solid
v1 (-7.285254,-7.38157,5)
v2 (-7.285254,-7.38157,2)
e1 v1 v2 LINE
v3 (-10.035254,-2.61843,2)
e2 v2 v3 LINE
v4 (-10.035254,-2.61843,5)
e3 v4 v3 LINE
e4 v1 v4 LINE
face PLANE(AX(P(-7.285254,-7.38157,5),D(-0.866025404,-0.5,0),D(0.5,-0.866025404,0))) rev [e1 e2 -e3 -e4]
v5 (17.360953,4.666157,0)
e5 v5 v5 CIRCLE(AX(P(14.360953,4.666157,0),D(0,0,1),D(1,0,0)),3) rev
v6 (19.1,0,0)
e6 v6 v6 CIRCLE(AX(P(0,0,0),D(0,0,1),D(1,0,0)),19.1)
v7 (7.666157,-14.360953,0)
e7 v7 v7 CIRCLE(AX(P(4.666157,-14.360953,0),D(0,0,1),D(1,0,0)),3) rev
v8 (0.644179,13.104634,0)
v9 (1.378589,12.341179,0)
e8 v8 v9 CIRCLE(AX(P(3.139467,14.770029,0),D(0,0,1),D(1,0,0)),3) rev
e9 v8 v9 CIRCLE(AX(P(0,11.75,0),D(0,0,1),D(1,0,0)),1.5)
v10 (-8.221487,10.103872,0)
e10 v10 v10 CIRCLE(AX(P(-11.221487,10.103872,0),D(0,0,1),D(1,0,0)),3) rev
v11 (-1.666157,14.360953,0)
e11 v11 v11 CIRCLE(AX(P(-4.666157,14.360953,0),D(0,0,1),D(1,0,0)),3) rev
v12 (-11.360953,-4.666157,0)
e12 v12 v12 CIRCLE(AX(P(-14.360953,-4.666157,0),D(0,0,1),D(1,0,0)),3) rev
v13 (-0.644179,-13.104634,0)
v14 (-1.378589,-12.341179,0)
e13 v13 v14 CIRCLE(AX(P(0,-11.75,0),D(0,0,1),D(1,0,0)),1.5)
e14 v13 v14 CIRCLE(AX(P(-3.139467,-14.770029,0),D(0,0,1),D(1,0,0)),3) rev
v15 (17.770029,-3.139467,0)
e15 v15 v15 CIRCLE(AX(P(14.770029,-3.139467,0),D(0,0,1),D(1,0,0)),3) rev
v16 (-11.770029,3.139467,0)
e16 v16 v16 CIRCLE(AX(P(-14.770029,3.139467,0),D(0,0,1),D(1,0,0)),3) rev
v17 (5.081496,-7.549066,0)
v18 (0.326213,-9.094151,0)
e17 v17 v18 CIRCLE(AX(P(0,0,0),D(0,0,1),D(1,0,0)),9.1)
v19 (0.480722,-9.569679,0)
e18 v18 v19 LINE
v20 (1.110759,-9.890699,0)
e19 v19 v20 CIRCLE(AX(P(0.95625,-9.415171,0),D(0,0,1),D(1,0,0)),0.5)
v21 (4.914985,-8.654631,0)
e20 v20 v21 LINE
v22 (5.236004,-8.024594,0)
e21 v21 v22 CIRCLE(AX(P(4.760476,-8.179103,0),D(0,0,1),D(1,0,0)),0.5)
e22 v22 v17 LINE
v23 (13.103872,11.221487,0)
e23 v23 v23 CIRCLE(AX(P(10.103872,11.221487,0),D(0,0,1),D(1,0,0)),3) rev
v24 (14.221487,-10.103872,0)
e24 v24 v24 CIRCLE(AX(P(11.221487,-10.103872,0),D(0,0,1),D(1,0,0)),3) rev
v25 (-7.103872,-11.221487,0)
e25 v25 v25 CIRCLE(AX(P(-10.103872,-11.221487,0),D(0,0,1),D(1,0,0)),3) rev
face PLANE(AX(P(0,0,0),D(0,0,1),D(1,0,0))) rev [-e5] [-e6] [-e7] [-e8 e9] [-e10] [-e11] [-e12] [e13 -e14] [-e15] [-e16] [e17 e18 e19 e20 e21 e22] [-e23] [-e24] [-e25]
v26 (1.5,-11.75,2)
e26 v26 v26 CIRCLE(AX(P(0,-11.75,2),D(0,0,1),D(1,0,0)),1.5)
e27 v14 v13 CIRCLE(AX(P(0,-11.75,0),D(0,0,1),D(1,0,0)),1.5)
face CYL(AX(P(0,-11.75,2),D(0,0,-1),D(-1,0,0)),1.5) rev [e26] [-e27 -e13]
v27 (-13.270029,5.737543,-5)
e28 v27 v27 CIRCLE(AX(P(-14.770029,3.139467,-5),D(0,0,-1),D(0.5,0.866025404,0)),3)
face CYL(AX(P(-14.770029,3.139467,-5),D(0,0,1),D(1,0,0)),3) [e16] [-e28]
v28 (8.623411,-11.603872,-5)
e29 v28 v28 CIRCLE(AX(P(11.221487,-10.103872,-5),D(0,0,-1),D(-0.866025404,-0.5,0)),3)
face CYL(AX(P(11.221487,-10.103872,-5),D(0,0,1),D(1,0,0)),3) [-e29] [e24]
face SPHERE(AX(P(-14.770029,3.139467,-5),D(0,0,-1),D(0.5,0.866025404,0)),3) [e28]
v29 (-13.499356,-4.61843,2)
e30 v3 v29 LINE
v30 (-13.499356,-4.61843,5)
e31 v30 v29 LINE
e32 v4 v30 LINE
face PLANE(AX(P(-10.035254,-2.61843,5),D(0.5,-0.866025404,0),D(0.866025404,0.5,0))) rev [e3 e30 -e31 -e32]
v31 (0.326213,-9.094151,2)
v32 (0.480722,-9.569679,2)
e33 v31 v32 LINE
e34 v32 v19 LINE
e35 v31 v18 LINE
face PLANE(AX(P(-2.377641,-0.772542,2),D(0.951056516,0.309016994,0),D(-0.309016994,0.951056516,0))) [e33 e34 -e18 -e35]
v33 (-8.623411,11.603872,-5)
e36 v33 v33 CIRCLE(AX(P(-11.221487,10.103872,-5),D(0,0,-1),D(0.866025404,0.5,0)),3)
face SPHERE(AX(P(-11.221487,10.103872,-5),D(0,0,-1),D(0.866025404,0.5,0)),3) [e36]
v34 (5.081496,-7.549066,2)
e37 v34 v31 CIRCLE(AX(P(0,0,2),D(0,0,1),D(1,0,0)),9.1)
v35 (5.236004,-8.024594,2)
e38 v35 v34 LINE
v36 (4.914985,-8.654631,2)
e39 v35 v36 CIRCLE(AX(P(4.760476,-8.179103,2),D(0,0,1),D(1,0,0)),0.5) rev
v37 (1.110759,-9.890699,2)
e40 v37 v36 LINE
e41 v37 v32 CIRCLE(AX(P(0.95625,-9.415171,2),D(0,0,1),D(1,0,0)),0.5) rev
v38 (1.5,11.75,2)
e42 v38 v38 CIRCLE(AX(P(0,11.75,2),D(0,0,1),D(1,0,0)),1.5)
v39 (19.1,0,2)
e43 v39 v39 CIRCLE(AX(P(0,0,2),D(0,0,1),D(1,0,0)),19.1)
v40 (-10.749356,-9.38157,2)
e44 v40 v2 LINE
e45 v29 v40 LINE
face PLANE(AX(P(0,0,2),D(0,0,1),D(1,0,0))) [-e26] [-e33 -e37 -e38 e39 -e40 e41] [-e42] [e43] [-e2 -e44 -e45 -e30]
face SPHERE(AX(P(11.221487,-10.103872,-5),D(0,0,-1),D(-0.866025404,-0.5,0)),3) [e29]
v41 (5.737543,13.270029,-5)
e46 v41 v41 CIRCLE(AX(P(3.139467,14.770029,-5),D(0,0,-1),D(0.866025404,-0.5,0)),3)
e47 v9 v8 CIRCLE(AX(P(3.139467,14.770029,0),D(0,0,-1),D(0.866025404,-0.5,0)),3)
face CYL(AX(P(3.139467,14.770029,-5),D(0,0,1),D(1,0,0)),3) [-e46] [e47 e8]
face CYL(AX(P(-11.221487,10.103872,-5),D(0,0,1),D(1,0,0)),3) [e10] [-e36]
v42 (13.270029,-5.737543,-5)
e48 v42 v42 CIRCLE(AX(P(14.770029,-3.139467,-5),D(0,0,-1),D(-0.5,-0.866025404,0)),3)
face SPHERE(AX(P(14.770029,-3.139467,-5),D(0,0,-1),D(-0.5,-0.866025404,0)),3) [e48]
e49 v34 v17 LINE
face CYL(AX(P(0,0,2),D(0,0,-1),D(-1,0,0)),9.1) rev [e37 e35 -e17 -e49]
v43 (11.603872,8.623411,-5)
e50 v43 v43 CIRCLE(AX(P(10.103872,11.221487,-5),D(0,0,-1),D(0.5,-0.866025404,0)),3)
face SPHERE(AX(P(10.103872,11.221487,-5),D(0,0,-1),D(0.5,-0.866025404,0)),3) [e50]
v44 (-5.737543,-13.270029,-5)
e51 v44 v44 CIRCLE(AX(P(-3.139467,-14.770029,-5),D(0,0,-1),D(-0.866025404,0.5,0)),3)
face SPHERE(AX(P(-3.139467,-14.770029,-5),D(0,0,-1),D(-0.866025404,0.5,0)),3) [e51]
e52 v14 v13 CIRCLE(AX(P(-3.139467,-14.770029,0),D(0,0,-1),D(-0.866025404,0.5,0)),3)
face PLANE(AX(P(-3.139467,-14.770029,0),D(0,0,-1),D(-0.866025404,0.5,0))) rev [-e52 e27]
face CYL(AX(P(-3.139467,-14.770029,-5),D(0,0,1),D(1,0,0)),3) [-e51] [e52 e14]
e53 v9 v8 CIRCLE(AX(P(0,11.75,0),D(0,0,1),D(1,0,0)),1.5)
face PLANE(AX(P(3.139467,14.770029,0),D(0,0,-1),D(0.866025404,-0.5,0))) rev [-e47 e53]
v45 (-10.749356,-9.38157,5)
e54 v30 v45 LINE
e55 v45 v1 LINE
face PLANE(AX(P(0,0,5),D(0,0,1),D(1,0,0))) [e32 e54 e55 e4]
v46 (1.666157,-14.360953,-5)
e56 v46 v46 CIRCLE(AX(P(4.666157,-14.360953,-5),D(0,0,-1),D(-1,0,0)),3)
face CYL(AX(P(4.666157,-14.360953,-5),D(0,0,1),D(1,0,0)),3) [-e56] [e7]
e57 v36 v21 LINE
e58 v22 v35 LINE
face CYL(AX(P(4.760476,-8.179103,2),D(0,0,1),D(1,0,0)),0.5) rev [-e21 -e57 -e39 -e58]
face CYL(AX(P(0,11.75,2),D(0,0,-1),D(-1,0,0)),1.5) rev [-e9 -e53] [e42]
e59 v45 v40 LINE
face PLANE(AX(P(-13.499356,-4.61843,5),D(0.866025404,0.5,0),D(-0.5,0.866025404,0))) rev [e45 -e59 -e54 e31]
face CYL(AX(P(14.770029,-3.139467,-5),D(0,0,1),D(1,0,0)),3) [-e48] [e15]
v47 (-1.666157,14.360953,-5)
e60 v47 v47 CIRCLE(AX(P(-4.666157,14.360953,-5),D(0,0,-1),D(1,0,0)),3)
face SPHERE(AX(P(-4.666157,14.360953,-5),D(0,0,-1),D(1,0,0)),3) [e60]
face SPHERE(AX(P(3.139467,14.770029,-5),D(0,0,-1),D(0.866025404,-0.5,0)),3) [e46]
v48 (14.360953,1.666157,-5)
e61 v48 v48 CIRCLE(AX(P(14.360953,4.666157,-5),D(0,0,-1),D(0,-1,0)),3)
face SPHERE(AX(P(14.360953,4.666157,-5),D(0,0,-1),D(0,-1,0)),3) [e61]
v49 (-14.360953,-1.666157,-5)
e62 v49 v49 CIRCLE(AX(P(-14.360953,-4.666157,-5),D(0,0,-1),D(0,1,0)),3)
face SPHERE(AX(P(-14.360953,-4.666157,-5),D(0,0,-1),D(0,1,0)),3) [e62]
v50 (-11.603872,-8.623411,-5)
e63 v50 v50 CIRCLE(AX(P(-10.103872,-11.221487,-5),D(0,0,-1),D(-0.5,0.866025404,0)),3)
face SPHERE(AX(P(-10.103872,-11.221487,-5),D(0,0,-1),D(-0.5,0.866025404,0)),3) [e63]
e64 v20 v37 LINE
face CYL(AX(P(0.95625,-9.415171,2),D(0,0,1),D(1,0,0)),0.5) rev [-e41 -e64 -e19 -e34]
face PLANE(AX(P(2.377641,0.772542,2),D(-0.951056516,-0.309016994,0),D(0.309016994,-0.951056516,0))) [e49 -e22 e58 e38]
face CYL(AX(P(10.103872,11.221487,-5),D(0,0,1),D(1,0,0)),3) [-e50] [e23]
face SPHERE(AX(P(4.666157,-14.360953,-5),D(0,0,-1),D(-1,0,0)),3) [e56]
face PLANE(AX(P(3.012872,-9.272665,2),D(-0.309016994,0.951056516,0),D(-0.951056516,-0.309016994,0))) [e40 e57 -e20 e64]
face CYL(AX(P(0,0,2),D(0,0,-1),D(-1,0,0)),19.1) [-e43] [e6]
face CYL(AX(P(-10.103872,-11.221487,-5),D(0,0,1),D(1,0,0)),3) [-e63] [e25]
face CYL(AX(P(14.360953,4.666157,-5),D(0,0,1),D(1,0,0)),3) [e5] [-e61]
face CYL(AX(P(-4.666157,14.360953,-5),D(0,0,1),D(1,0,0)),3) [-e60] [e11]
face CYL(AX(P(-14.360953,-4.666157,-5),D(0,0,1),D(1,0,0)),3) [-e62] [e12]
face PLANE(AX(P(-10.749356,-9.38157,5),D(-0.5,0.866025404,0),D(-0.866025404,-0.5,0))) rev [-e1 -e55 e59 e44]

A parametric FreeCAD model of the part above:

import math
import FreeCAD as App
import Part
import Sketcher

V = App.Vector
Q = App.Units.Quantity


def edges_at(feature, points):
    """Names of the edges that pass closest to the given points."""
    edges = feature.Shape.Edges
    near = lambda p: min(range(len(edges)), key=lambda i: edges[i].distToShape(Part.Vertex(*p))[0])
    return sorted({f"Edge{near(p) + 1}" for p in points})

doc = App.newDocument("Part")
body = doc.addObject("PartDesign::Body", "Body")

# Sketch on XY plane
sketch1 = body.newObject("Sketcher::SketchObject", "Sketch")
sketch1.AttachmentSupport = (doc.getObject("XY_Plane"), [""])
sketch1.MapMode = "FlatFace"
sketch1.addGeometry(Part.Circle(V(0, 0, 0), V(0, 0, 1), 19.1), False)
sketch1.addGeometry(Part.Circle(V(0, -11.8, 0), V(0, 0, 1), 1.5), False)
sketch1.addGeometry(Part.LineSegment(V(5.4, -8.5, 0), V(0.6, -10, 0)), False)
sketch1.addGeometry(Part.LineSegment(V(0.6, -10, 0), V(0.3, -9.1, 0)), False)
sketch1.addGeometry(Part.ArcOfCircle(Part.Circle(V(0, 0, 0), V(0, 0, 1), 9.1), math.radians(-56), math.radians(272)), False)
sketch1.addGeometry(Part.LineSegment(V(5.1, -7.5, 0), V(5.4, -8.5, 0)), False)
sketch1.addGeometry(Part.Circle(V(0, 11.8, 0), V(0, 0, 1), 1.5), False)
sketch1.addConstraint(Sketcher.Constraint("Coincident", 2, 2, 3, 1))
sketch1.addConstraint(Sketcher.Constraint("Coincident", 3, 2, 4, 2))
sketch1.addConstraint(Sketcher.Constraint("Coincident", 4, 1, 5, 1))
sketch1.addConstraint(Sketcher.Constraint("Coincident", 5, 2, 2, 1))
sketch1.addConstraint(Sketcher.Constraint("Coincident", 0, 3, -1, 1))
sketch1.addConstraint(Sketcher.Constraint("Coincident", 4, 3, -1, 1))
sketch1.addConstraint(Sketcher.Constraint("Equal", 1, 6))
sketch1.addConstraint(Sketcher.Constraint("Symmetric", 1, 3, 6, 3, -1, 1))
sketch1.addConstraint(Sketcher.Constraint("PointOnObject", 1, 3, -2))
sketch1.addConstraint(Sketcher.Constraint("Perpendicular", 2, 3))
sketch1.addConstraint(Sketcher.Constraint("Parallel", 3, 5))
sketch1.addConstraint(Sketcher.Constraint("Equal", 3, 5))
sketch1.addConstraint(Sketcher.Constraint("Diameter", 1, 3.0))
sketch1.addConstraint(Sketcher.Constraint("Diameter", 0, 38.2))
sketch1.addConstraint(Sketcher.Constraint("Radius", 4, 9.1))
sketch1.addConstraint(Sketcher.Constraint("Angle", 2, Q("-162 deg")))
sketch1.addConstraint(Sketcher.Constraint("Distance", 2, 5.0))
sketch1.addConstraint(Sketcher.Constraint("Distance", 3, 1.0))
sketch1.addConstraint(Sketcher.Constraint("DistanceY", 1, 3, 6, 3, 23.5))
pad1 = body.newObject("PartDesign::Pad", "Pad")
pad1.Profile = sketch1
pad1.Length = 2
doc.recompute()

fillet = body.newObject("PartDesign::Fillet", "Fillet")
fillet.Base = (pad1, edges_at(pad1, [(0.635, -10.045, 1), (5.391, -8.5, 1)]))
fillet.Radius = 0.5

# Sketch on XY plane
sketch2 = body.newObject("Sketcher::SketchObject", "Sketch001")
sketch2.AttachmentSupport = (doc.getObject("XY_Plane"), [""])
sketch2.MapMode = "FlatFace"
sketch2.AttachmentOffset = App.Placement(V(0, 0, 2), App.Rotation())
sketch2.addGeometry(Part.LineSegment(V(-10, -2.6, 0), V(-13.5, -4.6, 0)), False)
sketch2.addGeometry(Part.LineSegment(V(-13.5, -4.6, 0), V(-10.7, -9.4, 0)), False)
sketch2.addGeometry(Part.LineSegment(V(-10.7, -9.4, 0), V(-7.3, -7.4, 0)), False)
sketch2.addGeometry(Part.LineSegment(V(-7.3, -7.4, 0), V(-10, -2.6, 0)), False)
sketch2.addConstraint(Sketcher.Constraint("Coincident", 0, 2, 1, 1))
sketch2.addConstraint(Sketcher.Constraint("Coincident", 1, 2, 2, 1))
sketch2.addConstraint(Sketcher.Constraint("Coincident", 2, 2, 3, 1))
sketch2.addConstraint(Sketcher.Constraint("Coincident", 3, 2, 0, 1))
sketch2.addConstraint(Sketcher.Constraint("Perpendicular", 0, 1))
sketch2.addConstraint(Sketcher.Constraint("Perpendicular", 1, 2))
sketch2.addConstraint(Sketcher.Constraint("Perpendicular", 2, 3))
sketch2.addConstraint(Sketcher.Constraint("Angle", 0, Q("-150 deg")))
sketch2.addConstraint(Sketcher.Constraint("Distance", 0, 4.0))
sketch2.addConstraint(Sketcher.Constraint("Distance", 1, 5.5))
sketch2.addConstraint(Sketcher.Constraint("DistanceY", 0, 2, -1, 1, 4.61843))
sketch2.addConstraint(Sketcher.Constraint("DistanceX", 0, 2, -1, 1, 13.499356))
pad2 = body.newObject("PartDesign::Pad", "Pad001")
pad2.Profile = sketch2
pad2.Length = 3

# Sketch on XY plane
sketch3 = body.newObject("Sketcher::SketchObject", "Sketch002")
sketch3.AttachmentSupport = (doc.getObject("XY_Plane"), [""])
sketch3.MapMode = "FlatFace"
sketch3.addGeometry(Part.Circle(V(4.7, -14.4, 0), V(0, 0, 1), 3), False)
sketch3.addConstraint(Sketcher.Constraint("Diameter", 0, 6.0))
sketch3.addConstraint(Sketcher.Constraint("DistanceX", -1, 1, 0, 3, 4.666157))
sketch3.addConstraint(Sketcher.Constraint("DistanceY", 0, 3, -1, 1, 14.360953))
pad3 = body.newObject("PartDesign::Pad", "Pad002")
pad3.Profile = sketch3
pad3.Length = 5
pad3.Reversed = True

# Sketch on XY plane
sketch4 = body.newObject("Sketcher::SketchObject", "Sketch003")
sketch4.AttachmentSupport = (doc.getObject("XY_Plane"), [""])
sketch4.MapMode = "FlatFace"
sketch4.AttachmentOffset = App.Placement(V(0, 0, -5), App.Rotation())
sketch4.addGeometry(Part.LineSegment(V(4.7, -11.4, 0), V(4.7, -17.4, 0)), False)
sketch4.addGeometry(Part.ArcOfCircle(Part.Circle(V(4.7, -14.4, 0), V(0, 0, 1), 3), math.radians(90), math.radians(270)), False)
sketch4.addGeometry(Part.LineSegment(V(4.7, -11.4, 0), V(4.7, -17.4, 0)), True)  # axis
sketch4.addConstraint(Sketcher.Constraint("Coincident", 0, 1, 1, 1))
sketch4.addConstraint(Sketcher.Constraint("Coincident", 1, 2, 0, 2))
sketch4.addConstraint(Sketcher.Constraint("Vertical", 0))
sketch4.addConstraint(Sketcher.Constraint("Vertical", 2))
sketch4.addConstraint(Sketcher.Constraint("Coincident", 2, 1, 0, 1))
sketch4.addConstraint(Sketcher.Constraint("Vertical", 1, 3, 0, 1))
sketch4.addConstraint(Sketcher.Constraint("Equal", 0, 2))
sketch4.addConstraint(Sketcher.Constraint("Radius", 1, 3.0))
sketch4.addConstraint(Sketcher.Constraint("DistanceX", -1, 1, 1, 3, 4.666157))
sketch4.addConstraint(Sketcher.Constraint("DistanceY", 1, 3, -1, 1, 14.360953))
revolution = body.newObject("PartDesign::Revolution", "Revolution")
revolution.Profile = sketch4
revolution.ReferenceAxis = (sketch4, ["Axis0"])
revolution.Angle = 360
doc.recompute()

polarpattern = body.newObject("PartDesign::PolarPattern", "PolarPattern")
polarpattern.Originals = [pad3, revolution]
polarpattern.Axis = (doc.getObject("Z_Axis"), [""])
polarpattern.Angle = 360
polarpattern.Occurrences = 12
body.Tip = polarpattern

doc.recompute()
